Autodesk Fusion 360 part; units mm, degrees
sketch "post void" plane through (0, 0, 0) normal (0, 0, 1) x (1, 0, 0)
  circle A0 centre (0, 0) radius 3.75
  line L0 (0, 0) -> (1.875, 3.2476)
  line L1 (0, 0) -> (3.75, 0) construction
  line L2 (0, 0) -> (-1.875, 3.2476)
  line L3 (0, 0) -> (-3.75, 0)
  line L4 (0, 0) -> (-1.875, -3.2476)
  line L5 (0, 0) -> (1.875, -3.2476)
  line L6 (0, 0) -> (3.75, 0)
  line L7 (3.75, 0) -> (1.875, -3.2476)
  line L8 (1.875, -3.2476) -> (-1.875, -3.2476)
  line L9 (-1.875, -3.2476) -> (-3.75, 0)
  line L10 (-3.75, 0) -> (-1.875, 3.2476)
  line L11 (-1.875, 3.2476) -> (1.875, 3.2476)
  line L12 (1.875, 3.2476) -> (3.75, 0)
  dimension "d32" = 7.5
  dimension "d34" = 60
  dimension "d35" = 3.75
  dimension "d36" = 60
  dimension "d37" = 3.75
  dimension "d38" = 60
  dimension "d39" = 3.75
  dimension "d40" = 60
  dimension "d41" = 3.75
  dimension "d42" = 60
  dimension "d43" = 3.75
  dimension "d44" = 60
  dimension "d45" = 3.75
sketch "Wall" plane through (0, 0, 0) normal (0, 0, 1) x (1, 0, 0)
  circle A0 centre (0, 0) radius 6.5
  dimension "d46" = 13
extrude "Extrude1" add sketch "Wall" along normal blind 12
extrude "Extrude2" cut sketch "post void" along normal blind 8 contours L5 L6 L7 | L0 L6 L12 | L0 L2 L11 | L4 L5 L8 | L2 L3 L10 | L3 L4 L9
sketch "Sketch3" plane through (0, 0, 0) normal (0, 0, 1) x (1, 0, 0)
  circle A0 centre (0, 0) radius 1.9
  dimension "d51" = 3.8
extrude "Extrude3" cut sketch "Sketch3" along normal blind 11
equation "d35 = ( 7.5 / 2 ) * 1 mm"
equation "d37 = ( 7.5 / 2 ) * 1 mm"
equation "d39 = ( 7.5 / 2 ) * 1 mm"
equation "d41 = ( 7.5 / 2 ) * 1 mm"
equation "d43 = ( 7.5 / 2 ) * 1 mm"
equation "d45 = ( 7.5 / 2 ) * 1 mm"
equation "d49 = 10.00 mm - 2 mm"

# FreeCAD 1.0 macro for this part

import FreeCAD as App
import Part
import Sketcher
Q = App.Units.Quantity


def add_polygon(sketch, points):
    """Adds a closed chain of lines whose ends are joined by coincident constraints."""
    first, n = sketch.GeometryCount, len(points)
    for a, b in zip(points, points[1:] + points[:1]):
        sketch.addGeometry(Part.LineSegment(App.Vector(*a, 0), App.Vector(*b, 0)), False)
    for i in range(n):
        sketch.addConstraint(Sketcher.Constraint("Coincident", first + i, 2, first + (i + 1) % n, 1))

doc = App.newDocument("Part")
params = doc.addObject("Spreadsheet::Sheet", "Params")
for row, (alias, value) in enumerate([
    ("sketch1_diameter", "13 mm"),
    ("pad1_length", "12 mm"),
    ("sketch2_width", "3.75 mm"),
    ("pocket1_length", "8 mm"),
    ("sketch3_diameter", "3.8 mm"),
    ("pocket2_length", "11 mm"),
], start=1):
    params.set(f"A{row}", alias)
    params.set(f"B{row}", "=" + value)
    params.setAlias(f"B{row}", alias)

body = doc.addObject("PartDesign::Body", "Body")

sketch1 = body.newObject("Sketcher::SketchObject", "Sketch")
sketch1.AttachmentSupport = (doc.getObject("XY_Plane"), [""])
sketch1.MapMode = "FlatFace"
sketch1.addGeometry(Part.Circle(App.Vector(0, 0, 0), App.Vector(0, 0, 1), 6), False)
sketch1.addConstraint([
    Sketcher.Constraint("Coincident", 0, 3, -1, 1),
    Sketcher.Constraint("Diameter", 0, 13.0),
])
sketch1.setExpression("Constraints[1]", "Params.sketch1_diameter")
pad1 = body.newObject("PartDesign::Pad", "Pad")
pad1.Profile = sketch1
pad1.setExpression("Length", "Params.pad1_length")

sketch2 = body.newObject("Sketcher::SketchObject", "Sketch001")
sketch2.AttachmentSupport = (doc.getObject("XY_Plane"), [""])
sketch2.MapMode = "FlatFace"
add_polygon(sketch2, [(1.9, -3.2), (3.8, 0), (1.9, 3.2), (-1.9, 3.2), (-3.8, 0), (-1.9, -3.2)])
sketch2.addConstraint([
    Sketcher.Constraint("Horizontal", 2),
    Sketcher.Constraint("Horizontal", 5),
    Sketcher.Constraint("Symmetric", 0, 2, 3, 2, -1, 1),
    Sketcher.Constraint("Symmetric", 1, 2, 4, 2, -1, 1),
    Sketcher.Constraint("PointOnObject", 0, 2, -1),
    Sketcher.Constraint("Parallel", 0, 3),
    Sketcher.Constraint("Vertical", 2, 2, 4, 2),
    Sketcher.Constraint("Angle", 0, Q("60 deg")),
    Sketcher.Constraint("DistanceX", 2, 2, 2, 1, 3.75),
    Sketcher.Constraint("DistanceX", 3, 2, 0, 2, 7.5),
])
sketch2.setExpression("Constraints[14]", "Params.sketch2_width")
pocket1 = body.newObject("PartDesign::Pocket", "Pocket")
pocket1.Profile = sketch2
pocket1.setExpression("Length", "Params.pocket1_length")
pocket1.Reversed = True

sketch3 = body.newObject("Sketcher::SketchObject", "Sketch002")
sketch3.AttachmentSupport = (doc.getObject("XY_Plane"), [""])
sketch3.MapMode = "FlatFace"
sketch3.addGeometry(Part.Circle(App.Vector(0, 0, 0), App.Vector(0, 0, 1), 1.9), False)
sketch3.addConstraint([
    Sketcher.Constraint("Coincident", 0, 3, -1, 1),
    Sketcher.Constraint("Diameter", 0, 3.8),
])
sketch3.setExpression("Constraints[1]", "Params.sketch3_diameter")
pocket2 = body.newObject("PartDesign::Pocket", "Pocket001")
pocket2.Profile = sketch3
pocket2.setExpression("Length", "Params.pocket2_length")
pocket2.Reversed = True

doc.recompute()
